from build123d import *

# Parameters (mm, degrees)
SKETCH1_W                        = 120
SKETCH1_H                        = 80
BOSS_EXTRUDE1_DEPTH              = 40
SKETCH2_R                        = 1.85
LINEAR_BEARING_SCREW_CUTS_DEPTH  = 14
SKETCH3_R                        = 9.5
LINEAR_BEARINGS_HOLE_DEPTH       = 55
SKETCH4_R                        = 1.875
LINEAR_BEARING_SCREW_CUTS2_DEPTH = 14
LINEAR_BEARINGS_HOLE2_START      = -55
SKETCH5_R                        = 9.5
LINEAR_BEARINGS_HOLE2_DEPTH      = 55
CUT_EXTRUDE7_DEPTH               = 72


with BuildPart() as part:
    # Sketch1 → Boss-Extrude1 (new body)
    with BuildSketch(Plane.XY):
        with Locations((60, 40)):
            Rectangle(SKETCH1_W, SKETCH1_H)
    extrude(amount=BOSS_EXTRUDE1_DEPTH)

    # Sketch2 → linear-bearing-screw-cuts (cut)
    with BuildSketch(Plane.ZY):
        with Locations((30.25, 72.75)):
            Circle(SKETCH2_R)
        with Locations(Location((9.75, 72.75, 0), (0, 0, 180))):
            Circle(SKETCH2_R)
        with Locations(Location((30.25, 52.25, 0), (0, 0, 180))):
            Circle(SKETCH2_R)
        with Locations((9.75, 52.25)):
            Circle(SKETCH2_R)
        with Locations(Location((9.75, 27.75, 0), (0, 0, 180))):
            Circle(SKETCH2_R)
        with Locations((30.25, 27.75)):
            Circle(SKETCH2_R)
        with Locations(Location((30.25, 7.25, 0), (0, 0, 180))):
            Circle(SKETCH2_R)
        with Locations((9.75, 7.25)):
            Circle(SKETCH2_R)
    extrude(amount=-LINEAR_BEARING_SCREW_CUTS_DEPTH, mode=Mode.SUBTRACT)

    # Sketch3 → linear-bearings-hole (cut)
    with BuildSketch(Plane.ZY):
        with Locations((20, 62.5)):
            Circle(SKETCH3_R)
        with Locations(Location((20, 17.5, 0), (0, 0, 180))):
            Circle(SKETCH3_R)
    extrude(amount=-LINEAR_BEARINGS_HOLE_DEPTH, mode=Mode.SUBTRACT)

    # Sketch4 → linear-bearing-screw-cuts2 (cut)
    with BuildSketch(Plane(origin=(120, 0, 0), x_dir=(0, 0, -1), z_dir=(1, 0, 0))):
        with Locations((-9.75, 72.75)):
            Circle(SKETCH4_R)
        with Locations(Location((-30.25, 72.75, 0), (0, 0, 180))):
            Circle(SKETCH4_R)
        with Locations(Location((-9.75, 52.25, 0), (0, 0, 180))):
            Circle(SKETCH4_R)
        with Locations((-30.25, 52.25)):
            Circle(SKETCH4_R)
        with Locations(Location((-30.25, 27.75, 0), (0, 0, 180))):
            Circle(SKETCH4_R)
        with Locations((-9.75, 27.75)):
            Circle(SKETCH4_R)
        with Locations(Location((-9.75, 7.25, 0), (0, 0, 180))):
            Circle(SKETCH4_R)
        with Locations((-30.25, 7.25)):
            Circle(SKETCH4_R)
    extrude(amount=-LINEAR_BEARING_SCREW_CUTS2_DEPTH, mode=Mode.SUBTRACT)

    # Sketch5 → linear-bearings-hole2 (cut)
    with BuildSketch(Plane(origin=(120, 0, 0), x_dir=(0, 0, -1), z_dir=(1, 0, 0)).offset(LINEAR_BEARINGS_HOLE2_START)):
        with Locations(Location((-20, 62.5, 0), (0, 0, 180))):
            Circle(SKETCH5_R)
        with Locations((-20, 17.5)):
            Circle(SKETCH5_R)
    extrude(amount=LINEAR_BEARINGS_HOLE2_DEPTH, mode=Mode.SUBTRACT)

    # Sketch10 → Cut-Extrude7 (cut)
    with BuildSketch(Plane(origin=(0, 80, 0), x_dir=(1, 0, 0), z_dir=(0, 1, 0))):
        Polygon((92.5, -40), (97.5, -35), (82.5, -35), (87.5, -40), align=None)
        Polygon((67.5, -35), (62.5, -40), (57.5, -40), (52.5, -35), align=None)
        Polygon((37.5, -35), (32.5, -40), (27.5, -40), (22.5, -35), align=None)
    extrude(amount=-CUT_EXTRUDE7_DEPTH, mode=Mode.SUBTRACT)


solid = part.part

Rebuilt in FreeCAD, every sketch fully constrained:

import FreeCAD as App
import Part
import Sketcher

V = App.Vector
Q = App.Units.Quantity

doc = App.newDocument("Part")
body = doc.addObject("PartDesign::Body", "Body")

# Sketch on XY plane
sketch1 = doc.addObject("Sketcher::SketchObject", "Sketch")
body.addObject(sketch1)
sketch1.AttachmentSupport = (doc.XY_Plane, [""])
sketch1.MapMode = "FlatFace"
sketch1.addGeometry([
    Part.LineSegment(V(0, 80, 0), V(0, 0, 0)),
    Part.LineSegment(V(0, 0, 0), V(120, 0, 0)),
    Part.LineSegment(V(120, 0, 0), V(120, 80, 0)),
    Part.LineSegment(V(120, 80, 0), V(0, 80, 0)),
], False)
sketch1.addConstraint([
    Sketcher.Constraint("Coincident", 0, 2, 1, 1),
    Sketcher.Constraint("Coincident", 1, 2, 2, 1),
    Sketcher.Constraint("Coincident", 2, 2, 3, 1),
    Sketcher.Constraint("Coincident", 3, 2, 0, 1),
    Sketcher.Constraint("Vertical", 0),
    Sketcher.Constraint("Horizontal", 1),
    Sketcher.Constraint("Vertical", 2),
    Sketcher.Constraint("Horizontal", 3),
    Sketcher.Constraint("Coincident", 0, 2, -1, 1),
    Sketcher.Constraint("DistanceX", 1, 1, 1, 2, Q("120 mm")),
    Sketcher.Constraint("DistanceY", 0, 2, 0, 1, Q("80 mm")),
])
pad1 = doc.addObject("PartDesign::Pad", "Pad")
body.addObject(pad1)
pad1.Profile = sketch1
pad1.Length = 40

# Sketch on YZ plane
sketch2 = doc.addObject("Sketcher::SketchObject", "Sketch001")
body.addObject(sketch2)
sketch2.AttachmentSupport = (doc.YZ_Plane, [""])
sketch2.MapMode = "FlatFace"
sketch2.addGeometry([
    Part.Circle(V(72.8, 30.2, 0), V(0, 0, 1), 1.9),  # 0
    Part.Circle(V(72.8, 9.8, 0), V(0, 0, 1), 1.9),  # 1
    Part.Circle(V(52.2, 30.2, 0), V(0, 0, 1), 1.9),  # 2
    Part.Circle(V(52.2, 9.8, 0), V(0, 0, 1), 1.9),  # 3
    Part.Circle(V(27.8, 9.8, 0), V(0, 0, 1), 1.9),  # 4
    Part.Circle(V(27.8, 30.2, 0), V(0, 0, 1), 1.9),  # 5
    Part.Circle(V(7.2, 30.2, 0), V(0, 0, 1), 1.9),  # 6
    Part.Circle(V(7.2, 9.8, 0), V(0, 0, 1), 1.9),  # 7
], False)
sketch2.addConstraint([
    Sketcher.Constraint("Equal", 0, 1),
    Sketcher.Constraint("Equal", 1, 2),
    Sketcher.Constraint("Equal", 2, 3),
    Sketcher.Constraint("Equal", 3, 4),
    Sketcher.Constraint("Equal", 4, 5),
    Sketcher.Constraint("Equal", 5, 6),
    Sketcher.Constraint("Equal", 6, 7),
    Sketcher.Constraint("Horizontal", 0, 3, 2, 3),
    Sketcher.Constraint("Horizontal", 1, 3, 3, 3),
    Sketcher.Constraint("Horizontal", 3, 3, 4, 3),
    Sketcher.Constraint("Horizontal", 2, 3, 5, 3),
    Sketcher.Constraint("Horizontal", 5, 3, 6, 3),
    Sketcher.Constraint("Horizontal", 4, 3, 7, 3),
    Sketcher.Constraint("Vertical", 0, 3, 1, 3),
    Sketcher.Constraint("Vertical", 2, 3, 3, 3),
    Sketcher.Constraint("Vertical", 4, 3, 5, 3),
    Sketcher.Constraint("Vertical", 6, 3, 7, 3),
    Sketcher.Constraint("Diameter", 0, Q("3.7 mm")),
    Sketcher.Constraint("DistanceX", 4, 3, 1, 3, Q("45 mm")),
    Sketcher.Constraint("DistanceX", 6, 3, 2, 3, Q("45 mm")),
    Sketcher.Constraint("DistanceY", 1, 3, 0, 3, Q("20.5 mm")),
    Sketcher.Constraint("DistanceX", 2, 3, 0, 3, Q("20.5 mm")),
    Sketcher.Constraint("DistanceX", -1, 1, 0, 3, Q("72.75 mm")),
    Sketcher.Constraint("DistanceY", -1, 1, 0, 3, Q("30.25 mm")),
])
pocket1 = doc.addObject("PartDesign::Pocket", "Pocket")
body.addObject(pocket1)
pocket1.Profile = sketch2
pocket1.Length = 14
pocket1.Reversed = True

# Sketch on YZ plane
sketch3 = doc.addObject("Sketcher::SketchObject", "Sketch002")
body.addObject(sketch3)
sketch3.AttachmentSupport = (doc.YZ_Plane, [""])
sketch3.MapMode = "FlatFace"
sketch3.addGeometry([
    Part.Circle(V(62, 20, 0), V(0, 0, 1), 10),
    Part.Circle(V(18, 20, 0), V(0, 0, 1), 10),
], False)
sketch3.addConstraint([
    Sketcher.Constraint("Equal", 0, 1),
    Sketcher.Constraint("Horizontal", 0, 3, 1, 3),
    Sketcher.Constraint("Diameter", 0, Q("19 mm")),
    Sketcher.Constraint("DistanceY", -1, 1, 0, 3, Q("20 mm")),
    Sketcher.Constraint("DistanceX", 1, 3, 0, 3, Q("45 mm")),
    Sketcher.Constraint("DistanceX", -1, 1, 0, 3, Q("62.5 mm")),
])
pocket2 = doc.addObject("PartDesign::Pocket", "Pocket001")
body.addObject(pocket2)
pocket2.Profile = sketch3
pocket2.Length = 55
pocket2.Reversed = True

# Sketch on YZ plane
sketch4 = doc.addObject("Sketcher::SketchObject", "Sketch003")
body.addObject(sketch4)
sketch4.AttachmentSupport = (doc.YZ_Plane, [""])
sketch4.MapMode = "FlatFace"
sketch4.AttachmentOffset = App.Placement(V(0, 0, 120), App.Rotation())
sketch4.addGeometry([
    Part.Circle(V(72.8, 9.8, 0), V(0, 0, 1), 1.9),  # 0
    Part.Circle(V(72.8, 30.2, 0), V(0, 0, 1), 1.9),  # 1
    Part.Circle(V(52.2, 9.8, 0), V(0, 0, 1), 1.9),  # 2
    Part.Circle(V(52.2, 30.2, 0), V(0, 0, 1), 1.9),  # 3
    Part.Circle(V(27.8, 30.2, 0), V(0, 0, 1), 1.9),  # 4
    Part.Circle(V(27.8, 9.8, 0), V(0, 0, 1), 1.9),  # 5
    Part.Circle(V(7.2, 9.8, 0), V(0, 0, 1), 1.9),  # 6
    Part.Circle(V(7.2, 30.2, 0), V(0, 0, 1), 1.9),  # 7
], False)
sketch4.addConstraint([
    Sketcher.Constraint("Equal", 0, 1),
    Sketcher.Constraint("Equal", 1, 2),
    Sketcher.Constraint("Equal", 2, 3),
    Sketcher.Constraint("Equal", 3, 4),
    Sketcher.Constraint("Equal", 4, 5),
    Sketcher.Constraint("Equal", 5, 6),
    Sketcher.Constraint("Equal", 6, 7),
    Sketcher.Constraint("Horizontal", 0, 3, 2, 3),
    Sketcher.Constraint("Horizontal", 1, 3, 3, 3),
    Sketcher.Constraint("Horizontal", 3, 3, 4, 3),
    Sketcher.Constraint("Horizontal", 2, 3, 5, 3),
    Sketcher.Constraint("Horizontal", 5, 3, 6, 3),
    Sketcher.Constraint("Horizontal", 4, 3, 7, 3),
    Sketcher.Constraint("Vertical", 0, 3, 1, 3),
    Sketcher.Constraint("Vertical", 2, 3, 3, 3),
    Sketcher.Constraint("Vertical", 4, 3, 5, 3),
    Sketcher.Constraint("Vertical", 6, 3, 7, 3),
    Sketcher.Constraint("Diameter", 0, Q("3.75 mm")),
    Sketcher.Constraint("DistanceX", 4, 3, 1, 3, Q("45 mm")),
    Sketcher.Constraint("DistanceX", 6, 3, 2, 3, Q("45 mm")),
    Sketcher.Constraint("DistanceY", 0, 3, 1, 3, Q("20.5 mm")),
    Sketcher.Constraint("DistanceX", 2, 3, 0, 3, Q("20.5 mm")),
    Sketcher.Constraint("DistanceX", -1, 1, 0, 3, Q("72.75 mm")),
    Sketcher.Constraint("DistanceY", -1, 1, 0, 3, Q("9.75 mm")),
])
pocket3 = doc.addObject("PartDesign::Pocket", "Pocket002")
body.addObject(pocket3)
pocket3.Profile = sketch4
pocket3.Length = 14

# Sketch on YZ plane
sketch5 = doc.addObject("Sketcher::SketchObject", "Sketch004")
body.addObject(sketch5)
sketch5.AttachmentSupport = (doc.YZ_Plane, [""])
sketch5.MapMode = "FlatFace"
sketch5.AttachmentOffset = App.Placement(V(0, 0, 65), App.Rotation())
sketch5.addGeometry([
    Part.Circle(V(62, 20, 0), V(0, 0, 1), 10),
    Part.Circle(V(18, 20, 0), V(0, 0, 1), 10),
], False)
sketch5.addConstraint([
    Sketcher.Constraint("Equal", 0, 1),
    Sketcher.Constraint("Horizontal", 0, 3, 1, 3),
    Sketcher.Constraint("Diameter", 0, Q("19 mm")),
    Sketcher.Constraint("DistanceY", -1, 1, 0, 3, Q("20 mm")),
    Sketcher.Constraint("DistanceX", 1, 3, 0, 3, Q("45 mm")),
    Sketcher.Constraint("DistanceX", -1, 1, 0, 3, Q("62.5 mm")),
])
pocket4 = doc.addObject("PartDesign::Pocket", "Pocket003")
body.addObject(pocket4)
pocket4.Profile = sketch5
pocket4.Length = 55
pocket4.Reversed = True

# Sketch on XZ plane
sketch6 = doc.addObject("Sketcher::SketchObject", "Sketch005")
body.addObject(sketch6)
sketch6.AttachmentSupport = (doc.XZ_Plane, [""])
sketch6.MapMode = "FlatFace"
sketch6.AttachmentOffset = App.Placement(V(0, 0, -80), App.Rotation())
sketch6.addGeometry([
    Part.LineSegment(V(92, 40, 0), V(98, 35, 0)),  # 0
    Part.LineSegment(V(98, 35, 0), V(82, 35, 0)),  # 1
    Part.LineSegment(V(82, 35, 0), V(88, 40, 0)),  # 2
    Part.LineSegment(V(88, 40, 0), V(92, 40, 0)),  # 3
    Part.LineSegment(V(62, 40, 0), V(68, 35, 0)),  # 4
    Part.LineSegment(V(68, 35, 0), V(52, 35, 0)),  # 5
    Part.LineSegment(V(52, 35, 0), V(58, 40, 0)),  # 6
    Part.LineSegment(V(58, 40, 0), V(62, 40, 0)),  # 7
    Part.LineSegment(V(32, 40, 0), V(38, 35, 0)),  # 8
    Part.LineSegment(V(38, 35, 0), V(22, 35, 0)),  # 9
    Part.LineSegment(V(22, 35, 0), V(28, 40, 0)),  # 10
    Part.LineSegment(V(28, 40, 0), V(32, 40, 0)),  # 11
], False)
sketch6.addConstraint([
    Sketcher.Constraint("Coincident", 0, 2, 1, 1),
    Sketcher.Constraint("Coincident", 1, 2, 2, 1),
    Sketcher.Constraint("Coincident", 2, 2, 3, 1),
    Sketcher.Constraint("Coincident", 3, 2, 0, 1),
    Sketcher.Constraint("Coincident", 4, 2, 5, 1),
    Sketcher.Constraint("Coincident", 5, 2, 6, 1),
    Sketcher.Constraint("Coincident", 6, 2, 7, 1),
    Sketcher.Constraint("Coincident", 7, 2, 4, 1),
    Sketcher.Constraint("Coincident", 8, 2, 9, 1),
    Sketcher.Constraint("Coincident", 9, 2, 10, 1),
    Sketcher.Constraint("Coincident", 10, 2, 11, 1),
    Sketcher.Constraint("Coincident", 11, 2, 8, 1),
    Sketcher.Constraint("Horizontal", 1),
    Sketcher.Constraint("Horizontal", 3),
    Sketcher.Constraint("Horizontal", 5),
    Sketcher.Constraint("Horizontal", 7),
    Sketcher.Constraint("Horizontal", 9),
    Sketcher.Constraint("Horizontal", 11),
    Sketcher.Constraint("Perpendicular", 0, 2),
    Sketcher.Constraint("Perpendicular", 2, 4),
    Sketcher.Constraint("Perpendicular", 4, 6),
    Sketcher.Constraint("Perpendicular", 6, 8),
    Sketcher.Constraint("Perpendicular", 8, 10),
    Sketcher.Constraint("Horizontal", 1, 2, 4, 2),
    Sketcher.Constraint("Horizontal", 3, 2, 6, 2),
    Sketcher.Constraint("Horizontal", 5, 2, 8, 2),
    Sketcher.Constraint("Horizontal", 7, 2, 10, 2),
    Sketcher.Constraint("Equal", 1, 5),
    Sketcher.Constraint("Equal", 5, 9),
    Sketcher.Constraint("Equal", 0, 2),
    Sketcher.Constraint("DistanceX", 1, 2, 1, 1, Q("15 mm")),
    Sketcher.Constraint("DistanceX", 3, 1, 3, 2, Q("5 mm")),
    Sketcher.Constraint("DistanceY", -1, 1, 0, 2, Q("35 mm")),
    Sketcher.Constraint("DistanceX", 4, 2, 1, 2, Q("15 mm")),
    Sketcher.Constraint("DistanceX", 8, 2, 5, 2, Q("15 mm")),
    Sketcher.Constraint("DistanceX", -1, 1, 0, 2, Q("97.5 mm")),
])
pocket5 = doc.addObject("PartDesign::Pocket", "Pocket004")
body.addObject(pocket5)
pocket5.Profile = sketch6
pocket5.Length = 72
pocket5.Reversed = True

doc.recompute()
